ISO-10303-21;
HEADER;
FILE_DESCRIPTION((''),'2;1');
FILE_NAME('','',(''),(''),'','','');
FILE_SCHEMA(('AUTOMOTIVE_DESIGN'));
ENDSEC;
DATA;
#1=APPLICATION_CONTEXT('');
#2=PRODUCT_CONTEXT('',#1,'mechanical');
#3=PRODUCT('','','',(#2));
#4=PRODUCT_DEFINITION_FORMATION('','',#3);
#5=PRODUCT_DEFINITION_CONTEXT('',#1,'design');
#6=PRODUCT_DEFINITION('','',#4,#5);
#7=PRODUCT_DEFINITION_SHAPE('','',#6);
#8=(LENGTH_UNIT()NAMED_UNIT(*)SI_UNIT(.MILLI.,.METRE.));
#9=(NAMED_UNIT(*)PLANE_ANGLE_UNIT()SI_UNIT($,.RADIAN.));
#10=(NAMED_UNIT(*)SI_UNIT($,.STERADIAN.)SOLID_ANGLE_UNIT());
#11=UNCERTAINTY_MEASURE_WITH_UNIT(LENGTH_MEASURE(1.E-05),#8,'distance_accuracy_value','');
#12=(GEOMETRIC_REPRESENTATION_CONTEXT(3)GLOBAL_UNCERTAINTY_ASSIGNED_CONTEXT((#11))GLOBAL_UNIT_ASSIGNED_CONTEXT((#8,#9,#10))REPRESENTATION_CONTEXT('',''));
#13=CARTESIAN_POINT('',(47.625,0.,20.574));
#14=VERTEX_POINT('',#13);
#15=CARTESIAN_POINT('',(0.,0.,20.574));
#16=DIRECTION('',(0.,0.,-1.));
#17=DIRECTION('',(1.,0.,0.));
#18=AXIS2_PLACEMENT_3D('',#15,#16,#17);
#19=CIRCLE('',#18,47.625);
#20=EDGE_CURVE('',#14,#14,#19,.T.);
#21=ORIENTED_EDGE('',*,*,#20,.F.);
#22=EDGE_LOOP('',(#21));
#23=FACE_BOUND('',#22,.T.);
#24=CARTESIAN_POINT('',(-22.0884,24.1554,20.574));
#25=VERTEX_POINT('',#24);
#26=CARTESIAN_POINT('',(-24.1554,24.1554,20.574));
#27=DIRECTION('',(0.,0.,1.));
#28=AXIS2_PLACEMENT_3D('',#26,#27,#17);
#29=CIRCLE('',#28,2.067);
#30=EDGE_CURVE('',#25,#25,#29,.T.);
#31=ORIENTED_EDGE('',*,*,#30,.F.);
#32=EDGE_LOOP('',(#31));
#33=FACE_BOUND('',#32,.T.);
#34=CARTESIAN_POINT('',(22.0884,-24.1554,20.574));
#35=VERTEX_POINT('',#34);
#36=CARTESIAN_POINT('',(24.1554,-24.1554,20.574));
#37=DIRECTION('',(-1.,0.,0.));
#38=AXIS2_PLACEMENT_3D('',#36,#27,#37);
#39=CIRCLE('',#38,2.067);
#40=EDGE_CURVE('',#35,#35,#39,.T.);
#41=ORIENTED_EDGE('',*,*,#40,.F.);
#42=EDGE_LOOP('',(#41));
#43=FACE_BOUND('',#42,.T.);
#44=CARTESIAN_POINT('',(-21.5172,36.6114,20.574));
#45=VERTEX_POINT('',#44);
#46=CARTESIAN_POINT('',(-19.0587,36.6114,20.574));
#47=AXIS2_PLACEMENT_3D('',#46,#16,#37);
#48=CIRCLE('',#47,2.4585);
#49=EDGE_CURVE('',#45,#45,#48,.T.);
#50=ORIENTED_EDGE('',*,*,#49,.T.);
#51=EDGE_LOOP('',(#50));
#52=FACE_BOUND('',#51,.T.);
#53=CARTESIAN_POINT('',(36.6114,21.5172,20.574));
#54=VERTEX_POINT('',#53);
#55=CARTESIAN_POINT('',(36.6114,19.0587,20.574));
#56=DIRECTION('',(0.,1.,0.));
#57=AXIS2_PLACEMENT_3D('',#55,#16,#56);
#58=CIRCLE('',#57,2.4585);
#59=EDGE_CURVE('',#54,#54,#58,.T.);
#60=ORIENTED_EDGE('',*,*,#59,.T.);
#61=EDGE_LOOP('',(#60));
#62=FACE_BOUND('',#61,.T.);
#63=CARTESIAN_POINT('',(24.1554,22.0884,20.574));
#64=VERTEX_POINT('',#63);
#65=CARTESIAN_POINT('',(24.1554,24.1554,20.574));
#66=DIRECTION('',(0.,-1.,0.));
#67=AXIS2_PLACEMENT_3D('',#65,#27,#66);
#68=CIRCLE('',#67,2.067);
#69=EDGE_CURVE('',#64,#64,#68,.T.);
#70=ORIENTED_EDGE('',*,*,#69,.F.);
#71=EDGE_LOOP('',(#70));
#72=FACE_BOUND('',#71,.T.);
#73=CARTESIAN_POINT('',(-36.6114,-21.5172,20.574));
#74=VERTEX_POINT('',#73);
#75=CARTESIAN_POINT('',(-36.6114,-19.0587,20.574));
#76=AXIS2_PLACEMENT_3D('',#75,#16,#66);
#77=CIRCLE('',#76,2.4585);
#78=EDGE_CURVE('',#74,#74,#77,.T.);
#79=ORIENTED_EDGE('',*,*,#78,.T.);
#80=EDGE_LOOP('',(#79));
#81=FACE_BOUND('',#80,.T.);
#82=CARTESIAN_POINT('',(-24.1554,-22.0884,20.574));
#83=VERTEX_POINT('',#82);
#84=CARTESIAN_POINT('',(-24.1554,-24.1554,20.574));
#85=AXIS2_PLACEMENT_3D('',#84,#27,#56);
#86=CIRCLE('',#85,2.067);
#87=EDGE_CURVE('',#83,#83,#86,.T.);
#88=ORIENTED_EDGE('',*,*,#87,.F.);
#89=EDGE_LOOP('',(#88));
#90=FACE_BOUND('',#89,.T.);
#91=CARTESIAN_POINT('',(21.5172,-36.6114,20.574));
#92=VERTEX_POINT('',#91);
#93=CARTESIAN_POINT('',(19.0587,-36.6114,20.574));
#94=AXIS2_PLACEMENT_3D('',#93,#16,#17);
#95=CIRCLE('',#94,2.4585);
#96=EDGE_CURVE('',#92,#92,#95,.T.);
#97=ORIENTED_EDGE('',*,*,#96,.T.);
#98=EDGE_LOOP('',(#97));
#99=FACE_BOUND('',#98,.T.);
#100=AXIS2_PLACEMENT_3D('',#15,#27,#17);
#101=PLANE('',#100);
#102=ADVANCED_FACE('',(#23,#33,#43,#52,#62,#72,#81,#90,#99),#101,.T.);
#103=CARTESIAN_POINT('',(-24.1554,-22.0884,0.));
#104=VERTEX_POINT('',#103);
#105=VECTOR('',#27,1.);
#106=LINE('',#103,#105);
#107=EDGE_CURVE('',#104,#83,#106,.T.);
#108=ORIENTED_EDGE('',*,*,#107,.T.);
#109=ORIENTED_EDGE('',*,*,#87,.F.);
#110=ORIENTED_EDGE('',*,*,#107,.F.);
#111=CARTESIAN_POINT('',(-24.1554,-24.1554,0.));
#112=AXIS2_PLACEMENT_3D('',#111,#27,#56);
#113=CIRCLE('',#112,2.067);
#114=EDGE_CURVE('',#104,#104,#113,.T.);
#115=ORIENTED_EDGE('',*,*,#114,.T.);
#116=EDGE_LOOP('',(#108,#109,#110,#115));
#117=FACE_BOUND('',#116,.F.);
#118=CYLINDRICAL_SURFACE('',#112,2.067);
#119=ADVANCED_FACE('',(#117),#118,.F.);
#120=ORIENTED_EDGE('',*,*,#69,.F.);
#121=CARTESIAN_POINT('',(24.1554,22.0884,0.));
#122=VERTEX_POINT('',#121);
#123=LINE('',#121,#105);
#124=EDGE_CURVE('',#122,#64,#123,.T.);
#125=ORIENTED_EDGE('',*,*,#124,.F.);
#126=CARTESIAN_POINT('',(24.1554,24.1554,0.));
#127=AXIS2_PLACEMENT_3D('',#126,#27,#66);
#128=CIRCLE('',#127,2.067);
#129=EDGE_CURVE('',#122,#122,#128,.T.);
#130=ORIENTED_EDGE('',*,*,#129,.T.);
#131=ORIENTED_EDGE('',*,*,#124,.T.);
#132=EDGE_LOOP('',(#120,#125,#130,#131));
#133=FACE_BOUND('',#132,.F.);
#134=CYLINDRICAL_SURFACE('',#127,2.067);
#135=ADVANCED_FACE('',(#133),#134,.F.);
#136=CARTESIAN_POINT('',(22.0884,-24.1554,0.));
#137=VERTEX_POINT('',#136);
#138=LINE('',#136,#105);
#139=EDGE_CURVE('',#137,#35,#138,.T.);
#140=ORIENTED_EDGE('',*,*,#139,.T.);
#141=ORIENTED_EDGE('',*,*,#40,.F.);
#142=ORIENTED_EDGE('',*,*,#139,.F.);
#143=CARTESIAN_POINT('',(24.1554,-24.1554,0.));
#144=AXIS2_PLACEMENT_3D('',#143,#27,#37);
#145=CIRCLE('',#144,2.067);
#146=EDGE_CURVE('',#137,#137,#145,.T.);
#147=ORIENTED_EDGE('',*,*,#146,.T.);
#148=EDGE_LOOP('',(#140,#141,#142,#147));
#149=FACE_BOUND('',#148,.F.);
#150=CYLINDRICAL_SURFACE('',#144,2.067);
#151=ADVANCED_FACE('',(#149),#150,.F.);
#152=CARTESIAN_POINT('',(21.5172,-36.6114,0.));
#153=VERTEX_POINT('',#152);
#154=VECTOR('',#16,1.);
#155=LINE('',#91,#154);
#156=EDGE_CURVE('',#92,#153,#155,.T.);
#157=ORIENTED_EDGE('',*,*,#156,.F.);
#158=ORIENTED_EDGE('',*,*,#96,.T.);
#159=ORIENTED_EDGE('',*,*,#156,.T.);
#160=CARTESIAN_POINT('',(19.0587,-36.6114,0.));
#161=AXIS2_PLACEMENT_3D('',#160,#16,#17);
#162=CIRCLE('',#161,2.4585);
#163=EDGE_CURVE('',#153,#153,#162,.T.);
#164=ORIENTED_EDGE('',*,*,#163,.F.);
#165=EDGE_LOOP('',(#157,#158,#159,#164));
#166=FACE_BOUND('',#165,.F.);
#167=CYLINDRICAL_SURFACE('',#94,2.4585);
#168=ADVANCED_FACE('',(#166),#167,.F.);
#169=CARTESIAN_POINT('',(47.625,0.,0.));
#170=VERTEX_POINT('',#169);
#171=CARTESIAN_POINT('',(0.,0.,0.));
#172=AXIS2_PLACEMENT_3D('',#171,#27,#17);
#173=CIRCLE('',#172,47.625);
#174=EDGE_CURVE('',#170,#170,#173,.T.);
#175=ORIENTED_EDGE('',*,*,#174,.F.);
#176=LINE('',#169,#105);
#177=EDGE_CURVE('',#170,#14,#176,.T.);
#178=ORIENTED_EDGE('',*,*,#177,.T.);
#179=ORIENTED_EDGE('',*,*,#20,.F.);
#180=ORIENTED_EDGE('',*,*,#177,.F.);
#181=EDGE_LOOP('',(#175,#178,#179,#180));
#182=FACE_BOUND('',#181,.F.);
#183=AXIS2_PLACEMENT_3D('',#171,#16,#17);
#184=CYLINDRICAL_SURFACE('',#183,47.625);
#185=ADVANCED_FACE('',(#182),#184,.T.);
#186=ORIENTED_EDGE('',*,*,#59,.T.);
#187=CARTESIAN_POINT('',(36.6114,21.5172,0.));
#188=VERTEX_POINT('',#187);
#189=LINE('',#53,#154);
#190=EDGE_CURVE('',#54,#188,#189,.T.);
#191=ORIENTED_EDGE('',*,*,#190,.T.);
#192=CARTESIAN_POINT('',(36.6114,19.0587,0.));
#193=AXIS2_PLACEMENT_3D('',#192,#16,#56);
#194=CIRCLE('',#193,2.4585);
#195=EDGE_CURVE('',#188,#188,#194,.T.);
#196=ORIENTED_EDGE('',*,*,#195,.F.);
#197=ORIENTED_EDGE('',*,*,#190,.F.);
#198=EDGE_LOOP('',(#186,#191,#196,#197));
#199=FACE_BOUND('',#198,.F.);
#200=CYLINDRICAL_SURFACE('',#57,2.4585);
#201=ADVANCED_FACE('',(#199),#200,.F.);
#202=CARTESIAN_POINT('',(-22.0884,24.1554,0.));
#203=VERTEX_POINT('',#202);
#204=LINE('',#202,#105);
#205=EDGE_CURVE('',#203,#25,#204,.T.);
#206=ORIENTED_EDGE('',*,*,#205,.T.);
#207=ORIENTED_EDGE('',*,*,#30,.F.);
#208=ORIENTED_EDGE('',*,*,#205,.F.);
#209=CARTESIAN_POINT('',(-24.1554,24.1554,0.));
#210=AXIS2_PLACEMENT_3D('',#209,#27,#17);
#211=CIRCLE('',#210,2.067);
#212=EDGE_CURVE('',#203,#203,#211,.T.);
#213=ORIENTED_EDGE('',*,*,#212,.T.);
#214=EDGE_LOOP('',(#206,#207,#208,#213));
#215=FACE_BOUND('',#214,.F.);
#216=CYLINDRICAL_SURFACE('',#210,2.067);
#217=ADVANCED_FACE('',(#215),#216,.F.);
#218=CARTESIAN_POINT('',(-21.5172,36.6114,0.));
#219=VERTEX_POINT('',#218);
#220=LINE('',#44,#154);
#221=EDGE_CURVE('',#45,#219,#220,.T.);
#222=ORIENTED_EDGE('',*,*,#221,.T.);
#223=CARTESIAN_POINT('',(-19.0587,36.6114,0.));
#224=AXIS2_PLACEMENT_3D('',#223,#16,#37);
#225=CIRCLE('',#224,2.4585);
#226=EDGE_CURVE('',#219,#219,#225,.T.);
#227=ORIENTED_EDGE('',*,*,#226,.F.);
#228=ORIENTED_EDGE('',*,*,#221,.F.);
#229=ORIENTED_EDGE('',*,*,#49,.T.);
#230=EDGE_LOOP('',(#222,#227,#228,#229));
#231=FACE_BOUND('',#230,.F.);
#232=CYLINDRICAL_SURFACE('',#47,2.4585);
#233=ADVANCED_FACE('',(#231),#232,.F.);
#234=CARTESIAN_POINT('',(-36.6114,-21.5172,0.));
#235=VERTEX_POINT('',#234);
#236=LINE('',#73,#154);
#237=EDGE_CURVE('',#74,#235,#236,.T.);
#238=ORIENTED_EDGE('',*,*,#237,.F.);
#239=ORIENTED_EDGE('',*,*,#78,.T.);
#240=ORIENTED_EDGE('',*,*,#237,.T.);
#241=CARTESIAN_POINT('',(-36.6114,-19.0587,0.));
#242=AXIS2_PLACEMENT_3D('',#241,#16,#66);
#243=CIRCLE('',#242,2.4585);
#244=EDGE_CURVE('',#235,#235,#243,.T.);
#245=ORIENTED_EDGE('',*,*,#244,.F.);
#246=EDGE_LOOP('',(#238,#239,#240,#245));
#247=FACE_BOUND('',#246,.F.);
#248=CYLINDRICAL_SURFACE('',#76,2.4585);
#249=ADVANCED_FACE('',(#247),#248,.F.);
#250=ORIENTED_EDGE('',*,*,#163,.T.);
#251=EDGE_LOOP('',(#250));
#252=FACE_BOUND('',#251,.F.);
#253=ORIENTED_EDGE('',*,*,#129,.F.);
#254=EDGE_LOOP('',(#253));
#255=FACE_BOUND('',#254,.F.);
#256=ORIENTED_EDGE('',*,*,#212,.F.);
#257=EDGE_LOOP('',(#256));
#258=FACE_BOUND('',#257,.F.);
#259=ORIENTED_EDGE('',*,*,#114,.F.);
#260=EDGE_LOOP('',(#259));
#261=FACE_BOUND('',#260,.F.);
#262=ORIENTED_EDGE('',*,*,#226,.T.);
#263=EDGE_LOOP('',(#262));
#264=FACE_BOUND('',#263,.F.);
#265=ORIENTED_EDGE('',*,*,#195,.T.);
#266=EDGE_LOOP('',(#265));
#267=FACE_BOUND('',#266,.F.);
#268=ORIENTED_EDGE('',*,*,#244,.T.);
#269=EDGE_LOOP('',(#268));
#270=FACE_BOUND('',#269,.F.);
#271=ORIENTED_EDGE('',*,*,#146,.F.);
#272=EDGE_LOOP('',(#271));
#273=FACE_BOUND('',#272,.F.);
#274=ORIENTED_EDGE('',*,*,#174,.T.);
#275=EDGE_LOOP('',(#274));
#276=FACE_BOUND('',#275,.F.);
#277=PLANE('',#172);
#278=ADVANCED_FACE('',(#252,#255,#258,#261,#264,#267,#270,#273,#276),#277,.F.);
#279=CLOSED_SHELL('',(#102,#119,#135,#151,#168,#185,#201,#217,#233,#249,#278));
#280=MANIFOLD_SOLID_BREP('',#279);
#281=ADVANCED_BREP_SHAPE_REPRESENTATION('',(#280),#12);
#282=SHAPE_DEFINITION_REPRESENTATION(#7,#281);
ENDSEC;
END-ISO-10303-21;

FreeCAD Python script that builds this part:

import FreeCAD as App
import Part
import Sketcher
from FreeCAD import Vector
Q = App.Units.Quantity

doc = App.newDocument("Part")
body = doc.addObject("PartDesign::Body", "Body")

sketch1 = body.newObject("Sketcher::SketchObject", "Sketch")
sketch1.AttachmentSupport = (doc.getObject("XY_Plane"), [""])
sketch1.MapMode = "FlatFace"
sketch1.addGeometry(Part.Circle(Vector(0, 0, 0), Vector(0, 0, 1), 48), False)
sketch1.addConstraint(Sketcher.Constraint("Coincident", 0, 3, -1, 1))
sketch1.addConstraint(Sketcher.Constraint("Diameter", 0, Q("3.75 in")))
pad1 = body.newObject("PartDesign::Pad", "Pad")
pad1.Profile = sketch1
pad1.Length = Q("0.81 in")

sketch2 = body.newObject("Sketcher::SketchObject", "Sketch001")
sketch2.AttachmentSupport = (doc.getObject("XY_Plane"), [""])
sketch2.MapMode = "FlatFace"
sketch2.addGeometry(Part.Circle(Vector(-24.2, -24.2, 0), Vector(0, 0, 1), 2.1), False)
sketch2.addConstraint(Sketcher.Constraint("Diameter", 0, Q("4.134 mm")))
sketch2.addConstraint(Sketcher.Constraint("DistanceX", 0, 3, -1, 1, Q("0.951 in")))
sketch2.addConstraint(Sketcher.Constraint("DistanceY", 0, 3, -1, 1, Q("0.951 in")))
doc.recompute()
hole = body.newObject("PartDesign::Hole", "Hole")
hole.Profile = sketch2
hole.ThreadType = "None"
hole.Diameter = 4.134
hole.DepthType = "ThroughAll"
hole.Reversed = True

sketch3 = body.newObject("Sketcher::SketchObject", "Sketch002")
sketch3.AttachmentSupport = (doc.getObject("XY_Plane"), [""])
sketch3.MapMode = "FlatFace"
sketch3.AttachmentOffset = App.Placement(Vector(0, 0, 0.81 * 25.4), App.Rotation())
sketch3.addGeometry(Part.Circle(Vector(-36.6, -19.1, 0), Vector(0, 0, 1), 2.5), False)
sketch3.addConstraint(Sketcher.Constraint("Diameter", 0, Q("4.917 mm")))
sketch3.addConstraint(Sketcher.Constraint("DistanceX", 0, 3, -1, 1, Q("1.4414 in")))
sketch3.addConstraint(Sketcher.Constraint("DistanceY", 0, 3, -1, 1, Q("19.0587 mm")))
doc.recompute()
hole2 = body.newObject("PartDesign::Hole", "Hole001")
hole2.Profile = sketch3
hole2.ThreadType = "None"
hole2.Diameter = 4.917
hole2.DepthType = "ThroughAll"
doc.recompute()

polarpattern = body.newObject("PartDesign::PolarPattern", "PolarPattern")
polarpattern.Originals = [hole, hole2]
polarpattern.Axis = (doc.getObject("Z_Axis"), [""])
polarpattern.Angle = 360
polarpattern.Occurrences = 4
body.Tip = polarpattern

doc.recompute()
